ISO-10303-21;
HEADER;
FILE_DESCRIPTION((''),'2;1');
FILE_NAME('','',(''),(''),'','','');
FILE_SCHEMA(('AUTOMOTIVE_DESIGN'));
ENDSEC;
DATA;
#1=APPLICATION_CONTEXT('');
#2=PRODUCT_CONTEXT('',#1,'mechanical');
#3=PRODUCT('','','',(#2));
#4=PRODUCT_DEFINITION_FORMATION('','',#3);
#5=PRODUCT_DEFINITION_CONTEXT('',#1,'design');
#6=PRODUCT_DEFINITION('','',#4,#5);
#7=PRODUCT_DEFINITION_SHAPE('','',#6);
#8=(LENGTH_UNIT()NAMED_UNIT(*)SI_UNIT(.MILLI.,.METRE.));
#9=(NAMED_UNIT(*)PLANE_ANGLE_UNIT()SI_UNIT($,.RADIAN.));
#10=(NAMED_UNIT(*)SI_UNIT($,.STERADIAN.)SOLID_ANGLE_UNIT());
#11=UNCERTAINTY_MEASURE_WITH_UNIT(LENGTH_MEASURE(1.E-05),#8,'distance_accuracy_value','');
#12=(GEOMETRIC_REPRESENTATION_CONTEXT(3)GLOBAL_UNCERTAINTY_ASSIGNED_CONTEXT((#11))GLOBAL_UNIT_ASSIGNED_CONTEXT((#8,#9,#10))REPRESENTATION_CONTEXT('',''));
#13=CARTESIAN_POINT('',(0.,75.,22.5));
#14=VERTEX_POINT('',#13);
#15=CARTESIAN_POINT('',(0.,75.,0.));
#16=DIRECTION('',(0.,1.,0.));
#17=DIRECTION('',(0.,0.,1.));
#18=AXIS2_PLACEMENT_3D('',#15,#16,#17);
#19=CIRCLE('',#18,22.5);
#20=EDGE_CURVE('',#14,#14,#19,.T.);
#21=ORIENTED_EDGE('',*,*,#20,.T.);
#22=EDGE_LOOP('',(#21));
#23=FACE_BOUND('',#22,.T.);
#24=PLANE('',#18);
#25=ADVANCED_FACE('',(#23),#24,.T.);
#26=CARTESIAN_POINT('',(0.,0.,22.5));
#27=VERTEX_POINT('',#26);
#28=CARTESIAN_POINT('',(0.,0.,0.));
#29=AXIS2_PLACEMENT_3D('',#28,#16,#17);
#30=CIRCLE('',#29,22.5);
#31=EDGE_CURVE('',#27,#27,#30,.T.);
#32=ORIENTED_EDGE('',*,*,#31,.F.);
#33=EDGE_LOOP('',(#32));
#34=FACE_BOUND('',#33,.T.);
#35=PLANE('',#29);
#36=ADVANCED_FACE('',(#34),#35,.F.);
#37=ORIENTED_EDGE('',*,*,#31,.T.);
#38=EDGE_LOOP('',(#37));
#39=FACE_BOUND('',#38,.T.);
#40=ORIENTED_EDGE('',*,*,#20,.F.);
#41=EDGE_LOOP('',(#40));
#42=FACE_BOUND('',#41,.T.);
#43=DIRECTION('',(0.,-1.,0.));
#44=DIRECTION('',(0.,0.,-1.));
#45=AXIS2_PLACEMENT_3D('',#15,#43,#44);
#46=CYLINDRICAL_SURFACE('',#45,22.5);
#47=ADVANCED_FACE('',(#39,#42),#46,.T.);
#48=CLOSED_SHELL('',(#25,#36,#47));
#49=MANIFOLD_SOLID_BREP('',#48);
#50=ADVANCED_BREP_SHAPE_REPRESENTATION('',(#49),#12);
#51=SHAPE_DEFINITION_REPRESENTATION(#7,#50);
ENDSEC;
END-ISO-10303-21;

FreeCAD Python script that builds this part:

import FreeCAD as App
import Part
import Sketcher
Q = App.Units.Quantity

doc = App.newDocument("Part")
params = doc.addObject("Spreadsheet::Sheet", "Params")
for row, (alias, value) in enumerate([
    ("sketch1_diameter", "45 mm"),
    ("pad1_length", "75 mm"),
], start=1):
    params.set(f"A{row}", alias)
    params.set(f"B{row}", "=" + value)
    params.setAlias(f"B{row}", alias)

body = doc.addObject("PartDesign::Body", "Body")

sketch1 = body.newObject("Sketcher::SketchObject", "Sketch")
sketch1.AttachmentSupport = (doc.getObject("XZ_Plane"), [""])
sketch1.MapMode = "FlatFace"
sketch1.addGeometry(Part.Circle(App.Vector(0, 0, 0), App.Vector(0, 0, 1), 22), False)
sketch1.addConstraint(Sketcher.Constraint("Coincident", 0, 3, -1, 1))
sketch1.addConstraint(Sketcher.Constraint("Diameter", 0, Q("45 mm")))
sketch1.setExpression("Constraints[1]", "Params.sketch1_diameter")
pad1 = body.newObject("PartDesign::Pad", "Pad")
pad1.Profile = sketch1
pad1.setExpression("Length", "Params.pad1_length")
pad1.Reversed = True

doc.recompute()
